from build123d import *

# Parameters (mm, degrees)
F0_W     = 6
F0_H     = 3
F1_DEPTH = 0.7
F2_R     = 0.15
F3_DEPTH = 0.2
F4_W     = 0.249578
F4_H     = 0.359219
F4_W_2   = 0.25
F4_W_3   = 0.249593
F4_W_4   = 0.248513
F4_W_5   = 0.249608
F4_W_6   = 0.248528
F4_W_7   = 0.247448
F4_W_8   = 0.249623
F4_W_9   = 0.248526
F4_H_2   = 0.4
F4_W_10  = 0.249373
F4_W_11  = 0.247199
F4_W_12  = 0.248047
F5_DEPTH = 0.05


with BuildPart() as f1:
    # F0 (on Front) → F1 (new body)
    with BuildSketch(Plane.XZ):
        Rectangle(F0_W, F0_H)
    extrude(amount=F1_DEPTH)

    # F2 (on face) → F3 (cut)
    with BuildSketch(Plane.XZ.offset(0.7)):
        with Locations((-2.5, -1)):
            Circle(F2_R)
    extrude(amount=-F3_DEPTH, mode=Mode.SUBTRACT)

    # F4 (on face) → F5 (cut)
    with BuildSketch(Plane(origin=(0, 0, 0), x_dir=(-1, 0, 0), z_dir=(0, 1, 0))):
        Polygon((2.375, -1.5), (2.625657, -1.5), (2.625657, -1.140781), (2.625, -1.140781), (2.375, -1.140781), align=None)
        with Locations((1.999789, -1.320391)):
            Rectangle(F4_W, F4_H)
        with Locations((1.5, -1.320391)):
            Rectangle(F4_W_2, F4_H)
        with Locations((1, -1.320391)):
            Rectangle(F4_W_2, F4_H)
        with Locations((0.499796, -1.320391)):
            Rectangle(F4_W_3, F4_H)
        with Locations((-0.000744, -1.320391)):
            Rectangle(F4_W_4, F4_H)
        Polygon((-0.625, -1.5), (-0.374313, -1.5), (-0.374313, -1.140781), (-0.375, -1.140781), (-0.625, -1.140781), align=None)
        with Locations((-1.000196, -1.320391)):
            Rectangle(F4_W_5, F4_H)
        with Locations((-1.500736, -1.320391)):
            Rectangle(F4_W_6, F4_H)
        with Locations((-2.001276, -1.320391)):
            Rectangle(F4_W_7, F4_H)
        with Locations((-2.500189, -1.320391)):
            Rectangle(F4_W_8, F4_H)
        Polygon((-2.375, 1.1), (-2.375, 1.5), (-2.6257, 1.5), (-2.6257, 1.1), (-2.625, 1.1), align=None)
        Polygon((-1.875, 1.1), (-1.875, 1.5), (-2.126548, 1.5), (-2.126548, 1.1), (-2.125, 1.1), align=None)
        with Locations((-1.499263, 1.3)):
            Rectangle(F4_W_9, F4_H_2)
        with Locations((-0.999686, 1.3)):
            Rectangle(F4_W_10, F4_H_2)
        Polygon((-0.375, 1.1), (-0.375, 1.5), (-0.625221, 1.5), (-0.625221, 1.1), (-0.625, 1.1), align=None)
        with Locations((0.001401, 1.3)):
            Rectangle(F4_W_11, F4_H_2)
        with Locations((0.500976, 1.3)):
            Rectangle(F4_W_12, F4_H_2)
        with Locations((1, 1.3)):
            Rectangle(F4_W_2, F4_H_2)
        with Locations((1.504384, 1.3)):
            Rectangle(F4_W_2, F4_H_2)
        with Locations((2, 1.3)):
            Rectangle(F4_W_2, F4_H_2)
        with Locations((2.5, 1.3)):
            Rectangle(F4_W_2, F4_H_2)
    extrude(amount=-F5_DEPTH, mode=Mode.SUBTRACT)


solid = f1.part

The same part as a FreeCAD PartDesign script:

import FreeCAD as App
import Part
import Sketcher
from FreeCAD import Vector
Q = App.Units.Quantity


def add_polygon(sketch, points):
    """Adds a closed chain of lines whose ends are joined by coincident constraints."""
    first, n = sketch.GeometryCount, len(points)
    for a, b in zip(points, points[1:] + points[:1]):
        sketch.addGeometry(Part.LineSegment(App.Vector(*a, 0), App.Vector(*b, 0)), False)
    for i in range(n):
        sketch.addConstraint(Sketcher.Constraint("Coincident", first + i, 2, first + (i + 1) % n, 1))

doc = App.newDocument("Part")
body = doc.addObject("PartDesign::Body", "Body")

# Sketch on XZ plane
sketch1 = body.newObject("Sketcher::SketchObject", "Sketch")
sketch1.AttachmentSupport = (doc.getObject("XZ_Plane"), [""])
sketch1.MapMode = "FlatFace"
add_polygon(sketch1, [(-3, 1.5), (-3, -1.5), (3, -1.5), (3, 1.5)])  # lines 0-3
sketch1.addConstraint(Sketcher.Constraint("Vertical", 0))
sketch1.addConstraint(Sketcher.Constraint("Horizontal", 1))
sketch1.addConstraint(Sketcher.Constraint("Vertical", 2))
sketch1.addConstraint(Sketcher.Constraint("Horizontal", 3))
sketch1.addConstraint(Sketcher.Constraint("Symmetric", 0, 2, 2, 2, -1, 1))
sketch1.addConstraint(Sketcher.Constraint("DistanceX", 1, 1, 1, 2, Q("6 mm")))
sketch1.addConstraint(Sketcher.Constraint("DistanceY", 0, 2, 0, 1, Q("3 mm")))
pad1 = body.newObject("PartDesign::Pad", "Pad")
pad1.Profile = sketch1
pad1.Length = 0.7

# Sketch on XZ plane
sketch2 = body.newObject("Sketcher::SketchObject", "Sketch001")
sketch2.AttachmentSupport = (doc.getObject("XZ_Plane"), [""])
sketch2.MapMode = "FlatFace"
sketch2.AttachmentOffset = App.Placement(Vector(0, 0, 0.7), App.Rotation())
sketch2.addGeometry(Part.Circle(Vector(-2.5, -1, 0), Vector(0, 0, 1), 0.15), False)
sketch2.addConstraint(Sketcher.Constraint("Diameter", 0, Q("0.3 mm")))
sketch2.addConstraint(Sketcher.Constraint("DistanceY", 0, 3, -1, 1, Q("1 mm")))
sketch2.addConstraint(Sketcher.Constraint("DistanceX", 0, 3, -1, 1, Q("2.5 mm")))
pocket1 = body.newObject("PartDesign::Pocket", "Pocket")
pocket1.Profile = sketch2
pocket1.Length = 0.2

# Sketch on XZ plane
sketch3 = body.newObject("Sketcher::SketchObject", "Sketch002")
sketch3.AttachmentSupport = (doc.getObject("XZ_Plane"), [""])
sketch3.MapMode = "FlatFace"
add_polygon(sketch3, [(-2.38, -1.5), (-2.63, -1.5), (-2.63, -1.14), (-2.38, -1.14)])  # lines 0-3
add_polygon(sketch3, [(-1.88, -1.14), (-1.88, -1.5), (-2.12, -1.5), (-2.12, -1.14)])  # lines 4-7
add_polygon(sketch3, [(-1.38, -1.14), (-1.38, -1.5), (-1.62, -1.5), (-1.62, -1.14)])  # lines 8-11
add_polygon(sketch3, [(-0.88, -1.14), (-0.88, -1.5), (-1.12, -1.5), (-1.12, -1.14)])  # lines 12-15
add_polygon(sketch3, [(-0.37, -1.14), (-0.37, -1.5), (-0.62, -1.5), (-0.62, -1.14)])  # lines 16-19
add_polygon(sketch3, [(0.13, -1.14), (0.13, -1.5), (-0.12, -1.5), (-0.12, -1.14)])  # lines 20-23
add_polygon(sketch3, [(0.62, -1.5), (0.37, -1.5), (0.37, -1.14), (0.62, -1.14)])  # lines 24-27
add_polygon(sketch3, [(1.12, -1.14), (1.12, -1.5), (0.88, -1.5), (0.88, -1.14)])  # lines 28-31
add_polygon(sketch3, [(1.62, -1.14), (1.62, -1.5), (1.38, -1.5), (1.38, -1.14)])  # lines 32-35
add_polygon(sketch3, [(2.12, -1.14), (2.12, -1.5), (1.88, -1.5), (1.88, -1.14)])  # lines 36-39
add_polygon(sketch3, [(2.63, -1.14), (2.63, -1.5), (2.38, -1.5), (2.38, -1.14)])  # lines 40-43
add_polygon(sketch3, [(2.38, 1.1), (2.38, 1.5), (2.63, 1.5), (2.63, 1.1)])  # lines 44-47
add_polygon(sketch3, [(1.88, 1.1), (1.88, 1.5), (2.13, 1.5), (2.13, 1.1)])  # lines 48-51
add_polygon(sketch3, [(1.62, 1.5), (1.62, 1.1), (1.38, 1.1), (1.38, 1.5)])  # lines 52-55
add_polygon(sketch3, [(1.12, 1.5), (1.12, 1.1), (0.87, 1.1), (0.87, 1.5)])  # lines 56-59
add_polygon(sketch3, [(0.38, 1.1), (0.38, 1.5), (0.63, 1.5), (0.63, 1.1)])  # lines 60-63
add_polygon(sketch3, [(0.12, 1.5), (0.12, 1.1), (-0.13, 1.1), (-0.13, 1.5)])  # lines 64-67
add_polygon(sketch3, [(-0.38, 1.5), (-0.38, 1.1), (-0.62, 1.1), (-0.62, 1.5)])  # lines 68-71
add_polygon(sketch3, [(-0.88, 1.5), (-0.88, 1.1), (-1.12, 1.1), (-1.12, 1.5)])  # lines 72-75
add_polygon(sketch3, [(-1.38, 1.5), (-1.38, 1.1), (-1.63, 1.1), (-1.63, 1.5)])  # lines 76-79
add_polygon(sketch3, [(-1.88, 1.5), (-1.88, 1.1), (-2.12, 1.1), (-2.12, 1.5)])  # lines 80-83
add_polygon(sketch3, [(-2.38, 1.5), (-2.38, 1.1), (-2.62, 1.1), (-2.62, 1.5)])  # lines 84-87
sketch3.addConstraint(Sketcher.Constraint("Horizontal", 0))
sketch3.addConstraint(Sketcher.Constraint("Vertical", 1))
sketch3.addConstraint(Sketcher.Constraint("Horizontal", 2))
sketch3.addConstraint(Sketcher.Constraint("Vertical", 3))
sketch3.addConstraint(Sketcher.Constraint("Vertical", 4))
sketch3.addConstraint(Sketcher.Constraint("Horizontal", 5))
sketch3.addConstraint(Sketcher.Constraint("Vertical", 6))
sketch3.addConstraint(Sketcher.Constraint("Horizontal", 7))
sketch3.addConstraint(Sketcher.Constraint("Vertical", 8))
sketch3.addConstraint(Sketcher.Constraint("Horizontal", 9))
sketch3.addConstraint(Sketcher.Constraint("Vertical", 10))
sketch3.addConstraint(Sketcher.Constraint("Horizontal", 11))
sketch3.addConstraint(Sketcher.Constraint("Vertical", 12))
sketch3.addConstraint(Sketcher.Constraint("Horizontal", 13))
sketch3.addConstraint(Sketcher.Constraint("Vertical", 14))
sketch3.addConstraint(Sketcher.Constraint("Horizontal", 15))
sketch3.addConstraint(Sketcher.Constraint("Vertical", 16))
sketch3.addConstraint(Sketcher.Constraint("Horizontal", 17))
sketch3.addConstraint(Sketcher.Constraint("Vertical", 18))
sketch3.addConstraint(Sketcher.Constraint("Horizontal", 19))
sketch3.addConstraint(Sketcher.Constraint("Vertical", 20))
sketch3.addConstraint(Sketcher.Constraint("Horizontal", 21))
sketch3.addConstraint(Sketcher.Constraint("Vertical", 22))
sketch3.addConstraint(Sketcher.Constraint("Horizontal", 23))
sketch3.addConstraint(Sketcher.Constraint("Horizontal", 24))
sketch3.addConstraint(Sketcher.Constraint("Vertical", 25))
sketch3.addConstraint(Sketcher.Constraint("Horizontal", 26))
sketch3.addConstraint(Sketcher.Constraint("Vertical", 27))
sketch3.addConstraint(Sketcher.Constraint("Vertical", 28))
sketch3.addConstraint(Sketcher.Constraint("Horizontal", 29))
sketch3.addConstraint(Sketcher.Constraint("Vertical", 30))
sketch3.addConstraint(Sketcher.Constraint("Horizontal", 31))
sketch3.addConstraint(Sketcher.Constraint("Vertical", 32))
sketch3.addConstraint(Sketcher.Constraint("Horizontal", 33))
sketch3.addConstraint(Sketcher.Constraint("Vertical", 34))
sketch3.addConstraint(Sketcher.Constraint("Horizontal", 35))
sketch3.addConstraint(Sketcher.Constraint("Vertical", 36))
sketch3.addConstraint(Sketcher.Constraint("Horizontal", 37))
sketch3.addConstraint(Sketcher.Constraint("Vertical", 38))
sketch3.addConstraint(Sketcher.Constraint("Horizontal", 39))
sketch3.addConstraint(Sketcher.Constraint("Vertical", 40))
sketch3.addConstraint(Sketcher.Constraint("Horizontal", 41))
sketch3.addConstraint(Sketcher.Constraint("Vertical", 42))
sketch3.addConstraint(Sketcher.Constraint("Horizontal", 43))
sketch3.addConstraint(Sketcher.Constraint("Vertical", 44))
sketch3.addConstraint(Sketcher.Constraint("Horizontal", 45))
sketch3.addConstraint(Sketcher.Constraint("Vertical", 46))
sketch3.addConstraint(Sketcher.Constraint("Horizontal", 47))
sketch3.addConstraint(Sketcher.Constraint("Vertical", 48))
sketch3.addConstraint(Sketcher.Constraint("Horizontal", 49))
sketch3.addConstraint(Sketcher.Constraint("Vertical", 50))
sketch3.addConstraint(Sketcher.Constraint("Horizontal", 51))
sketch3.addConstraint(Sketcher.Constraint("Vertical", 52))
sketch3.addConstraint(Sketcher.Constraint("Horizontal", 53))
sketch3.addConstraint(Sketcher.Constraint("Vertical", 54))
sketch3.addConstraint(Sketcher.Constraint("Horizontal", 55))
sketch3.addConstraint(Sketcher.Constraint("Vertical", 56))
sketch3.addConstraint(Sketcher.Constraint("Horizontal", 57))
sketch3.addConstraint(Sketcher.Constraint("Vertical", 58))
sketch3.addConstraint(Sketcher.Constraint("Horizontal", 59))
sketch3.addConstraint(Sketcher.Constraint("Vertical", 60))
sketch3.addConstraint(Sketcher.Constraint("Horizontal", 61))
sketch3.addConstraint(Sketcher.Constraint("Vertical", 62))
sketch3.addConstraint(Sketcher.Constraint("Horizontal", 63))
sketch3.addConstraint(Sketcher.Constraint("Vertical", 64))
sketch3.addConstraint(Sketcher.Constraint("Horizontal", 65))
sketch3.addConstraint(Sketcher.Constraint("Vertical", 66))
sketch3.addConstraint(Sketcher.Constraint("Horizontal", 67))
sketch3.addConstraint(Sketcher.Constraint("Vertical", 68))
sketch3.addConstraint(Sketcher.Constraint("Horizontal", 69))
sketch3.addConstraint(Sketcher.Constraint("Vertical", 70))
sketch3.addConstraint(Sketcher.Constraint("Horizontal", 71))
sketch3.addConstraint(Sketcher.Constraint("Vertical", 72))
sketch3.addConstraint(Sketcher.Constraint("Horizontal", 73))
sketch3.addConstraint(Sketcher.Constraint("Vertical", 74))
sketch3.addConstraint(Sketcher.Constraint("Horizontal", 75))
sketch3.addConstraint(Sketcher.Constraint("Vertical", 76))
sketch3.addConstraint(Sketcher.Constraint("Horizontal", 77))
sketch3.addConstraint(Sketcher.Constraint("Vertical", 78))
sketch3.addConstraint(Sketcher.Constraint("Horizontal", 79))
sketch3.addConstraint(Sketcher.Constraint("Vertical", 80))
sketch3.addConstraint(Sketcher.Constraint("Horizontal", 81))
sketch3.addConstraint(Sketcher.Constraint("Vertical", 82))
sketch3.addConstraint(Sketcher.Constraint("Horizontal", 83))
sketch3.addConstraint(Sketcher.Constraint("Vertical", 84))
sketch3.addConstraint(Sketcher.Constraint("Horizontal", 85))
sketch3.addConstraint(Sketcher.Constraint("Vertical", 86))
sketch3.addConstraint(Sketcher.Constraint("Horizontal", 87))
sketch3.addConstraint(Sketcher.Constraint("Symmetric", 3, 2, 44, 2, -1, 1))
sketch3.addConstraint(Sketcher.Constraint("Symmetric", 4, 2, 48, 2, -1, 1))
sketch3.addConstraint(Sketcher.Constraint("Symmetric", 8, 2, 54, 2, -1, 1))
sketch3.addConstraint(Sketcher.Constraint("Symmetric", 12, 2, 58, 2, -1, 1))
sketch3.addConstraint(Sketcher.Constraint("Symmetric", 16, 2, 60, 2, -1, 1))
sketch3.addConstraint(Sketcher.Constraint("Symmetric", 20, 2, 66, 2, -1, 1))
sketch3.addConstraint(Sketcher.Constraint("Symmetric", 27, 2, 70, 2, -1, 1))
sketch3.addConstraint(Sketcher.Constraint("Symmetric", 28, 2, 74, 2, -1, 1))
sketch3.addConstraint(Sketcher.Constraint("Symmetric", 36, 2, 82, 2, -1, 1))
sketch3.addConstraint(Sketcher.Constraint("Symmetric", 40, 2, 86, 2, -1, 1))
sketch3.addConstraint(Sketcher.Constraint("Symmetric", 13, 2, 28, 2, -2))
sketch3.addConstraint(Sketcher.Constraint("Symmetric", 9, 2, 32, 2, -2))
sketch3.addConstraint(Sketcher.Constraint("Symmetric", 57, 2, 72, 2, -2))
sketch3.addConstraint(Sketcher.Constraint("Symmetric", 51, 2, 80, 2, -2))
sketch3.addConstraint(Sketcher.Constraint("Symmetric", 47, 2, 84, 2, -2))
sketch3.addConstraint(Sketcher.Constraint("Horizontal", 3, 2, 4, 2))
sketch3.addConstraint(Sketcher.Constraint("Horizontal", 2, 2, 6, 2))
sketch3.addConstraint(Sketcher.Constraint("Horizontal", 5, 2, 8, 2))
sketch3.addConstraint(Sketcher.Constraint("Horizontal", 7, 2, 10, 2))
sketch3.addConstraint(Sketcher.Constraint("Horizontal", 9, 2, 12, 2))
sketch3.addConstraint(Sketcher.Constraint("Horizontal", 11, 2, 14, 2))
sketch3.addConstraint(Sketcher.Constraint("Horizontal", 13, 2, 16, 2))
sketch3.addConstraint(Sketcher.Constraint("Horizontal", 15, 2, 18, 2))
sketch3.addConstraint(Sketcher.Constraint("Horizontal", 17, 2, 20, 2))
sketch3.addConstraint(Sketcher.Constraint("Horizontal", 19, 2, 22, 2))
sketch3.addConstraint(Sketcher.Constraint("Horizontal", 21, 2, 24, 2))
sketch3.addConstraint(Sketcher.Constraint("Horizontal", 23, 2, 25, 2))
sketch3.addConstraint(Sketcher.Constraint("Horizontal", 26, 2, 30, 2))
sketch3.addConstraint(Sketcher.Constraint("Horizontal", 31, 2, 34, 2))
sketch3.addConstraint(Sketcher.Constraint("Horizontal", 33, 2, 36, 2))
sketch3.addConstraint(Sketcher.Constraint("Horizontal", 35, 2, 38, 2))
sketch3.addConstraint(Sketcher.Constraint("Horizontal", 37, 2, 40, 2))
sketch3.addConstraint(Sketcher.Constraint("Horizontal", 39, 2, 42, 2))
sketch3.addConstraint(Sketcher.Constraint("Horizontal", 47, 2, 50, 2))
sketch3.addConstraint(Sketcher.Constraint("Horizontal", 51, 2, 52, 2))
sketch3.addConstraint(Sketcher.Constraint("Horizontal", 53, 2, 56, 2))
sketch3.addConstraint(Sketcher.Constraint("Horizontal", 57, 2, 62, 2))
sketch3.addConstraint(Sketcher.Constraint("Horizontal", 63, 2, 64, 2))
sketch3.addConstraint(Sketcher.Constraint("Horizontal", 65, 2, 68, 2))
sketch3.addConstraint(Sketcher.Constraint("Horizontal", 73, 2, 76, 2))
sketch3.addConstraint(Sketcher.Constraint("Horizontal", 75, 2, 78, 2))
sketch3.addConstraint(Sketcher.Constraint("Equal", 11, 13))
sketch3.addConstraint(Sketcher.Constraint("Equal", 75, 77))
sketch3.addConstraint(Sketcher.Constraint("Equal", 79, 81))
sketch3.addConstraint(Sketcher.Constraint("Equal", 83, 85))
sketch3.addConstraint(Sketcher.Constraint("DistanceY", 44, 1, 44, 2, Q("0.4 mm")))
sketch3.addConstraint(Sketcher.Constraint("DistanceX", 9, 2, 9, 1, Q("0.25 mm")))
sketch3.addConstraint(Sketcher.Constraint("DistanceY", 0, 2, -1, 1, Q("1.5 mm")))
sketch3.addConstraint(Sketcher.Constraint("DistanceX", 45, 1, 45, 2, Q("0.2507 mm")))
sketch3.addConstraint(Sketcher.Constraint("DistanceX", 65, 2, 65, 1, Q("0.247199 mm")))
sketch3.addConstraint(Sketcher.Constraint("DistanceX", 2, 2, -1, 1, Q("2.375 mm")))
sketch3.addConstraint(Sketcher.Constraint("DistanceX", 4, 2, -1, 1, Q("1.875 mm")))
sketch3.addConstraint(Sketcher.Constraint("DistanceX", 8, 2, -1, 1, Q("1.375 mm")))
sketch3.addConstraint(Sketcher.Constraint("DistanceX", 12, 2, -1, 1, Q("0.875 mm")))
sketch3.addConstraint(Sketcher.Constraint("DistanceX", 16, 2, -1, 1, Q("0.374999 mm")))
sketch3.addConstraint(Sketcher.Constraint("DistanceX", -1, 1, 20, 2, Q("0.125 mm")))
sketch3.addConstraint(Sketcher.Constraint("DistanceX", -1, 1, 26, 2, Q("0.625 mm")))
sketch3.addConstraint(Sketcher.Constraint("DistanceX", 5, 2, 5, 1, Q("0.249578 mm")))
sketch3.addConstraint(Sketcher.Constraint("DistanceX", 29, 2, 29, 1, Q("0.249608 mm")))
sketch3.addConstraint(Sketcher.Constraint("DistanceX", 33, 2, 33, 1, Q("0.248528 mm")))
sketch3.addConstraint(Sketcher.Constraint("DistanceX", 49, 1, 49, 2, Q("0.251548 mm")))
sketch3.addConstraint(Sketcher.Constraint("DistanceX", 61, 1, 61, 2, Q("0.250221 mm")))
sketch3.addConstraint(Sketcher.Constraint("DistanceY", 1, 1, 1, 2, Q("0.359219 mm")))
sketch3.addConstraint(Sketcher.Constraint("DistanceX", 0, 2, 0, 1, Q("0.250657 mm")))
sketch3.addConstraint(Sketcher.Constraint("DistanceX", 17, 2, 17, 1, Q("0.249593 mm")))
sketch3.addConstraint(Sketcher.Constraint("DistanceX", 21, 2, 21, 1, Q("0.248513 mm")))
sketch3.addConstraint(Sketcher.Constraint("DistanceX", 24, 2, 24, 1, Q("0.250687 mm")))
sketch3.addConstraint(Sketcher.Constraint("DistanceX", 37, 2, 37, 1, Q("0.247448 mm")))
sketch3.addConstraint(Sketcher.Constraint("DistanceX", 41, 2, 41, 1, Q("0.249623 mm")))
sketch3.addConstraint(Sketcher.Constraint("DistanceX", 53, 2, 53, 1, Q("0.248526 mm")))
sketch3.addConstraint(Sketcher.Constraint("DistanceX", 57, 2, 57, 1, Q("0.249373 mm")))
sketch3.addConstraint(Sketcher.Constraint("DistanceX", 69, 2, 69, 1, Q("0.248047 mm")))
sketch3.addConstraint(Sketcher.Constraint("DistanceX", 76, 2, -1, 1, Q("1.379384 mm")))
pocket2 = body.newObject("PartDesign::Pocket", "Pocket001")
pocket2.Profile = sketch3
pocket2.Length = 0.05
pocket2.Reversed = True

doc.recompute()
